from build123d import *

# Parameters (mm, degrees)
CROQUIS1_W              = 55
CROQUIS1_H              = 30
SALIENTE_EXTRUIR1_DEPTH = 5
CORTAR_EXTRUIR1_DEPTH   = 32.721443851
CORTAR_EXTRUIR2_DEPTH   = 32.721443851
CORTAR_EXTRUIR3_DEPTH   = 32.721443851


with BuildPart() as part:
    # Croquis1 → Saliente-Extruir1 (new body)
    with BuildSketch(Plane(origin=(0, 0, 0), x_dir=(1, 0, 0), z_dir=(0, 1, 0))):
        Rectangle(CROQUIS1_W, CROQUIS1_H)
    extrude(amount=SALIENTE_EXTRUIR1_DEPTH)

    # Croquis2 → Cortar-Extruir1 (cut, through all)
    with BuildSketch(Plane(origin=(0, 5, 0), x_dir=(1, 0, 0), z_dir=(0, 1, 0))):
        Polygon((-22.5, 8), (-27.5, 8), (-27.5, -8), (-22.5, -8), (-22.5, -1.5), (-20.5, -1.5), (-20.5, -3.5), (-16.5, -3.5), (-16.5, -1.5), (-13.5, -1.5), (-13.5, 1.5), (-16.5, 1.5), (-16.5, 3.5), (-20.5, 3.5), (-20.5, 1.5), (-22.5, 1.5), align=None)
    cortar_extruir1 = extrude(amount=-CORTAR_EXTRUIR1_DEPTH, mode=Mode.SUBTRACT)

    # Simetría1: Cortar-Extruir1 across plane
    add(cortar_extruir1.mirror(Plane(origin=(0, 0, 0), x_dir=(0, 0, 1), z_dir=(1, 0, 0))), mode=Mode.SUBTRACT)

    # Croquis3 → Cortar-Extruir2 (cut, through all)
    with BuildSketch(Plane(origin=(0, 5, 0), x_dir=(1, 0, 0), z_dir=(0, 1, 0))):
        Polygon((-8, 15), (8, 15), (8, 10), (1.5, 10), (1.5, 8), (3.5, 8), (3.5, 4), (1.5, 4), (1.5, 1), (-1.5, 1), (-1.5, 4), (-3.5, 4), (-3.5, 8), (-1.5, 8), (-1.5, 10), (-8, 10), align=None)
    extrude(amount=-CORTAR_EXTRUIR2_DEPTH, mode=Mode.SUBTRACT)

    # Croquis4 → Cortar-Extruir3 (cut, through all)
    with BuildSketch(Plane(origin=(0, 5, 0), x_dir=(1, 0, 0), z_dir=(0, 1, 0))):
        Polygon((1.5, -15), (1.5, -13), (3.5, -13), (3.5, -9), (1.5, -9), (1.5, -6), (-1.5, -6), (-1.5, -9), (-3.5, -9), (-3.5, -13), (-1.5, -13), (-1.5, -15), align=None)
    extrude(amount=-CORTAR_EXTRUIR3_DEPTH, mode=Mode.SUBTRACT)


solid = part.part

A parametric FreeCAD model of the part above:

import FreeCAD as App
import Part
import Sketcher
from FreeCAD import Vector

doc = App.newDocument("Part")
body = doc.addObject("PartDesign::Body", "Body")

# Sketch on XZ plane
sketch1 = doc.addObject("Sketcher::SketchObject", "Sketch")
body.addObject(sketch1)
sketch1.AttachmentSupport = (doc.XZ_Plane, [""])
sketch1.MapMode = "FlatFace"
sketch1.addGeometry([
    Part.LineSegment(Vector(-28, -15, 0), Vector(-28, 15, 0)),
    Part.LineSegment(Vector(-28, 15, 0), Vector(28, 15, 0)),
    Part.LineSegment(Vector(28, 15, 0), Vector(28, -15, 0)),
    Part.LineSegment(Vector(28, -15, 0), Vector(-28, -15, 0)),
], False)
sketch1.addConstraint([
    Sketcher.Constraint("Coincident", 0, 2, 1, 1),
    Sketcher.Constraint("Coincident", 1, 2, 2, 1),
    Sketcher.Constraint("Coincident", 2, 2, 3, 1),
    Sketcher.Constraint("Coincident", 3, 2, 0, 1),
    Sketcher.Constraint("Vertical", 0),
    Sketcher.Constraint("Horizontal", 1),
    Sketcher.Constraint("Vertical", 2),
    Sketcher.Constraint("Horizontal", 3),
    Sketcher.Constraint("Symmetric", 0, 2, 2, 2, -1, 1),
    Sketcher.Constraint("DistanceX", 1, 1, 1, 2, 55.0),
    Sketcher.Constraint("DistanceY", 0, 1, 0, 2, 30.0),
])
pad1 = doc.addObject("PartDesign::Pad", "Pad")
body.addObject(pad1)
pad1.Profile = sketch1
pad1.Length = 5
pad1.Reversed = True

# Sketch on XZ plane
sketch2 = doc.addObject("Sketcher::SketchObject", "Sketch001")
body.addObject(sketch2)
sketch2.AttachmentSupport = (doc.XZ_Plane, [""])
sketch2.MapMode = "FlatFace"
sketch2.AttachmentOffset = App.Placement(Vector(0, 0, -5), App.Rotation())
sketch2.addGeometry([
    Part.LineSegment(Vector(-22.5, -8, 0), Vector(-27.5, -8, 0)),  # 0
    Part.LineSegment(Vector(-27.5, -8, 0), Vector(-27.5, 8, 0)),  # 1
    Part.LineSegment(Vector(-27.5, 8, 0), Vector(-22.5, 8, 0)),  # 2
    Part.LineSegment(Vector(-22.5, 8, 0), Vector(-22.5, 1.5, 0)),  # 3
    Part.LineSegment(Vector(-22.5, 1.5, 0), Vector(-20.5, 1.5, 0)),  # 4
    Part.LineSegment(Vector(-20.5, 1.5, 0), Vector(-20.5, 3.5, 0)),  # 5
    Part.LineSegment(Vector(-20.5, 3.5, 0), Vector(-16.5, 3.5, 0)),  # 6
    Part.LineSegment(Vector(-16.5, 3.5, 0), Vector(-16.5, 1.5, 0)),  # 7
    Part.LineSegment(Vector(-16.5, 1.5, 0), Vector(-13.5, 1.5, 0)),  # 8
    Part.LineSegment(Vector(-13.5, 1.5, 0), Vector(-13.5, -1.5, 0)),  # 9
    Part.LineSegment(Vector(-13.5, -1.5, 0), Vector(-16.5, -1.5, 0)),  # 10
    Part.LineSegment(Vector(-16.5, -1.5, 0), Vector(-16.5, -3.5, 0)),  # 11
    Part.LineSegment(Vector(-16.5, -3.5, 0), Vector(-20.5, -3.5, 0)),  # 12
    Part.LineSegment(Vector(-20.5, -3.5, 0), Vector(-20.5, -1.5, 0)),  # 13
    Part.LineSegment(Vector(-20.5, -1.5, 0), Vector(-22.5, -1.5, 0)),  # 14
    Part.LineSegment(Vector(-22.5, -1.5, 0), Vector(-22.5, -8, 0)),  # 15
], False)
sketch2.addConstraint([
    Sketcher.Constraint("Coincident", 0, 2, 1, 1),
    Sketcher.Constraint("Coincident", 1, 2, 2, 1),
    Sketcher.Constraint("Coincident", 2, 2, 3, 1),
    Sketcher.Constraint("Coincident", 3, 2, 4, 1),
    Sketcher.Constraint("Coincident", 4, 2, 5, 1),
    Sketcher.Constraint("Coincident", 5, 2, 6, 1),
    Sketcher.Constraint("Coincident", 6, 2, 7, 1),
    Sketcher.Constraint("Coincident", 7, 2, 8, 1),
    Sketcher.Constraint("Coincident", 8, 2, 9, 1),
    Sketcher.Constraint("Coincident", 9, 2, 10, 1),
    Sketcher.Constraint("Coincident", 10, 2, 11, 1),
    Sketcher.Constraint("Coincident", 11, 2, 12, 1),
    Sketcher.Constraint("Coincident", 12, 2, 13, 1),
    Sketcher.Constraint("Coincident", 13, 2, 14, 1),
    Sketcher.Constraint("Coincident", 14, 2, 15, 1),
    Sketcher.Constraint("Coincident", 15, 2, 0, 1),
    Sketcher.Constraint("Horizontal", 0),
    Sketcher.Constraint("Vertical", 1),
    Sketcher.Constraint("Horizontal", 2),
    Sketcher.Constraint("Vertical", 3),
    Sketcher.Constraint("Horizontal", 4),
    Sketcher.Constraint("Vertical", 5),
    Sketcher.Constraint("Horizontal", 6),
    Sketcher.Constraint("Vertical", 7),
    Sketcher.Constraint("Horizontal", 8),
    Sketcher.Constraint("Vertical", 9),
    Sketcher.Constraint("Horizontal", 10),
    Sketcher.Constraint("Vertical", 11),
    Sketcher.Constraint("Horizontal", 12),
    Sketcher.Constraint("Vertical", 13),
    Sketcher.Constraint("Horizontal", 14),
    Sketcher.Constraint("Vertical", 15),
    Sketcher.Constraint("Symmetric", 7, 2, 10, 2, -1),
    Sketcher.Constraint("Symmetric", 5, 2, 12, 2, -1),
    Sketcher.Constraint("Symmetric", 3, 2, 14, 2, -1),
    Sketcher.Constraint("Horizontal", 4, 2, 7, 2),
    Sketcher.Constraint("Equal", 14, 5),
    Sketcher.Constraint("Equal", 10, 9),
    Sketcher.Constraint("Equal", 3, 15),
    Sketcher.Constraint("DistanceX", 0, 2, 0, 1, 5.0),
    Sketcher.Constraint("DistanceX", 4, 1, 4, 2, 2.0),
    Sketcher.Constraint("DistanceX", 6, 1, 6, 2, 4.0),
    Sketcher.Constraint("DistanceX", 8, 1, 8, 2, 3.0),
    Sketcher.Constraint("DistanceY", 1, 1, 1, 2, 16.0),
    Sketcher.Constraint("DistanceX", 0, 2, -1, 1, 27.5),
])
pocket1 = doc.addObject("PartDesign::Pocket", "Pocket")
body.addObject(pocket1)
pocket1.Profile = sketch2
pocket1.Type = "ThroughAll"
pocket1.Reversed = True
doc.recompute()

mirrored = doc.addObject("PartDesign::Mirrored", "Mirrored")
body.addObject(mirrored)
mirrored.Originals = [pocket1]
mirrored.MirrorPlane = (doc.YZ_Plane, [""])
body.Tip = mirrored

# Sketch on XZ plane
sketch3 = doc.addObject("Sketcher::SketchObject", "Sketch002")
body.addObject(sketch3)
sketch3.AttachmentSupport = (doc.XZ_Plane, [""])
sketch3.MapMode = "FlatFace"
sketch3.AttachmentOffset = App.Placement(Vector(0, 0, -5), App.Rotation())
sketch3.addGeometry([
    Part.LineSegment(Vector(8, -15, 0), Vector(-8, -15, 0)),  # 0
    Part.LineSegment(Vector(-8, -15, 0), Vector(-8, -10, 0)),  # 1
    Part.LineSegment(Vector(-8, -10, 0), Vector(-1.5, -10, 0)),  # 2
    Part.LineSegment(Vector(-1.5, -10, 0), Vector(-1.5, -8, 0)),  # 3
    Part.LineSegment(Vector(-1.5, -8, 0), Vector(-3.5, -8, 0)),  # 4
    Part.LineSegment(Vector(-3.5, -8, 0), Vector(-3.5, -4, 0)),  # 5
    Part.LineSegment(Vector(-3.5, -4, 0), Vector(-1.5, -4, 0)),  # 6
    Part.LineSegment(Vector(-1.5, -4, 0), Vector(-1.5, -1, 0)),  # 7
    Part.LineSegment(Vector(-1.5, -1, 0), Vector(1.5, -1, 0)),  # 8
    Part.LineSegment(Vector(1.5, -1, 0), Vector(1.5, -4, 0)),  # 9
    Part.LineSegment(Vector(1.5, -4, 0), Vector(3.5, -4, 0)),  # 10
    Part.LineSegment(Vector(3.5, -4, 0), Vector(3.5, -8, 0)),  # 11
    Part.LineSegment(Vector(3.5, -8, 0), Vector(1.5, -8, 0)),  # 12
    Part.LineSegment(Vector(1.5, -8, 0), Vector(1.5, -10, 0)),  # 13
    Part.LineSegment(Vector(1.5, -10, 0), Vector(8, -10, 0)),  # 14
    Part.LineSegment(Vector(8, -10, 0), Vector(8, -15, 0)),  # 15
], False)
sketch3.addConstraint([
    Sketcher.Constraint("Coincident", 0, 2, 1, 1),
    Sketcher.Constraint("Coincident", 1, 2, 2, 1),
    Sketcher.Constraint("Coincident", 2, 2, 3, 1),
    Sketcher.Constraint("Coincident", 3, 2, 4, 1),
    Sketcher.Constraint("Coincident", 4, 2, 5, 1),
    Sketcher.Constraint("Coincident", 5, 2, 6, 1),
    Sketcher.Constraint("Coincident", 6, 2, 7, 1),
    Sketcher.Constraint("Coincident", 7, 2, 8, 1),
    Sketcher.Constraint("Coincident", 8, 2, 9, 1),
    Sketcher.Constraint("Coincident", 9, 2, 10, 1),
    Sketcher.Constraint("Coincident", 10, 2, 11, 1),
    Sketcher.Constraint("Coincident", 11, 2, 12, 1),
    Sketcher.Constraint("Coincident", 12, 2, 13, 1),
    Sketcher.Constraint("Coincident", 13, 2, 14, 1),
    Sketcher.Constraint("Coincident", 14, 2, 15, 1),
    Sketcher.Constraint("Coincident", 15, 2, 0, 1),
    Sketcher.Constraint("Horizontal", 0),
    Sketcher.Constraint("Vertical", 1),
    Sketcher.Constraint("Horizontal", 2),
    Sketcher.Constraint("Vertical", 3),
    Sketcher.Constraint("Horizontal", 4),
    Sketcher.Constraint("Vertical", 5),
    Sketcher.Constraint("Horizontal", 6),
    Sketcher.Constraint("Vertical", 7),
    Sketcher.Constraint("Horizontal", 8),
    Sketcher.Constraint("Vertical", 9),
    Sketcher.Constraint("Horizontal", 10),
    Sketcher.Constraint("Vertical", 11),
    Sketcher.Constraint("Horizontal", 12),
    Sketcher.Constraint("Vertical", 13),
    Sketcher.Constraint("Horizontal", 14),
    Sketcher.Constraint("Vertical", 15),
    Sketcher.Constraint("Symmetric", 6, 2, 9, 2, -2),
    Sketcher.Constraint("Symmetric", 4, 2, 11, 2, -2),
    Sketcher.Constraint("Symmetric", 2, 2, 13, 2, -2),
    Sketcher.Constraint("Vertical", 3, 2, 6, 2),
    Sketcher.Constraint("Equal", 2, 14),
    Sketcher.Constraint("Equal", 12, 3),
    Sketcher.Constraint("Equal", 8, 7),
    Sketcher.Constraint("DistanceX", 0, 2, 0, 1, 16.0),
    Sketcher.Constraint("DistanceX", 4, 2, 4, 1, 2.0),
    Sketcher.Constraint("DistanceX", 8, 1, 8, 2, 3.0),
    Sketcher.Constraint("DistanceY", 1, 1, 1, 2, 5.0),
    Sketcher.Constraint("DistanceY", 5, 1, 5, 2, 4.0),
    Sketcher.Constraint("DistanceY", 0, 2, -1, 1, 15.0),
])
pocket2 = doc.addObject("PartDesign::Pocket", "Pocket001")
body.addObject(pocket2)
pocket2.Profile = sketch3
pocket2.Type = "ThroughAll"
pocket2.Reversed = True

# Sketch on XZ plane
sketch4 = doc.addObject("Sketcher::SketchObject", "Sketch003")
body.addObject(sketch4)
sketch4.AttachmentSupport = (doc.XZ_Plane, [""])
sketch4.MapMode = "FlatFace"
sketch4.AttachmentOffset = App.Placement(Vector(0, 0, -5), App.Rotation())
sketch4.addGeometry([
    Part.LineSegment(Vector(1.5, 15, 0), Vector(1.5, 13, 0)),  # 0
    Part.LineSegment(Vector(1.5, 13, 0), Vector(3.5, 13, 0)),  # 1
    Part.LineSegment(Vector(3.5, 13, 0), Vector(3.5, 9, 0)),  # 2
    Part.LineSegment(Vector(3.5, 9, 0), Vector(1.5, 9, 0)),  # 3
    Part.LineSegment(Vector(1.5, 9, 0), Vector(1.5, 6, 0)),  # 4
    Part.LineSegment(Vector(1.5, 6, 0), Vector(-1.5, 6, 0)),  # 5
    Part.LineSegment(Vector(-1.5, 6, 0), Vector(-1.5, 9, 0)),  # 6
    Part.LineSegment(Vector(-1.5, 9, 0), Vector(-3.5, 9, 0)),  # 7
    Part.LineSegment(Vector(-3.5, 9, 0), Vector(-3.5, 13, 0)),  # 8
    Part.LineSegment(Vector(-3.5, 13, 0), Vector(-1.5, 13, 0)),  # 9
    Part.LineSegment(Vector(-1.5, 13, 0), Vector(-1.5, 15, 0)),  # 10
    Part.LineSegment(Vector(-1.5, 15, 0), Vector(1.5, 15, 0)),  # 11
], False)
sketch4.addConstraint([
    Sketcher.Constraint("Coincident", 0, 2, 1, 1),
    Sketcher.Constraint("Coincident", 1, 2, 2, 1),
    Sketcher.Constraint("Coincident", 2, 2, 3, 1),
    Sketcher.Constraint("Coincident", 3, 2, 4, 1),
    Sketcher.Constraint("Coincident", 4, 2, 5, 1),
    Sketcher.Constraint("Coincident", 5, 2, 6, 1),
    Sketcher.Constraint("Coincident", 6, 2, 7, 1),
    Sketcher.Constraint("Coincident", 7, 2, 8, 1),
    Sketcher.Constraint("Coincident", 8, 2, 9, 1),
    Sketcher.Constraint("Coincident", 9, 2, 10, 1),
    Sketcher.Constraint("Coincident", 10, 2, 11, 1),
    Sketcher.Constraint("Coincident", 11, 2, 0, 1),
    Sketcher.Constraint("Vertical", 0),
    Sketcher.Constraint("Horizontal", 1),
    Sketcher.Constraint("Vertical", 2),
    Sketcher.Constraint("Horizontal", 3),
    Sketcher.Constraint("Vertical", 4),
    Sketcher.Constraint("Horizontal", 5),
    Sketcher.Constraint("Vertical", 6),
    Sketcher.Constraint("Horizontal", 7),
    Sketcher.Constraint("Vertical", 8),
    Sketcher.Constraint("Horizontal", 9),
    Sketcher.Constraint("Vertical", 10),
    Sketcher.Constraint("Horizontal", 11),
    Sketcher.Constraint("Symmetric", 3, 2, 6, 2, -2),
    Sketcher.Constraint("Symmetric", 1, 2, 8, 2, -2),
    Sketcher.Constraint("Vertical", 0, 2, 3, 2),
    Sketcher.Constraint("Vertical", 6, 2, 9, 2),
    Sketcher.Constraint("Equal", 9, 0),
    Sketcher.Constraint("Equal", 11, 4),
    Sketcher.Constraint("DistanceX", 1, 1, 1, 2, 2.0),
    Sketcher.Constraint("DistanceX", 5, 2, 5, 1, 3.0),
    Sketcher.Constraint("DistanceY", 2, 2, 2, 1, 4.0),
    Sketcher.Constraint("DistanceY", -1, 1, 0, 2, 13.0),
])
pocket3 = doc.addObject("PartDesign::Pocket", "Pocket002")
body.addObject(pocket3)
pocket3.Profile = sketch4
pocket3.Type = "ThroughAll"
pocket3.Reversed = True

doc.recompute()
